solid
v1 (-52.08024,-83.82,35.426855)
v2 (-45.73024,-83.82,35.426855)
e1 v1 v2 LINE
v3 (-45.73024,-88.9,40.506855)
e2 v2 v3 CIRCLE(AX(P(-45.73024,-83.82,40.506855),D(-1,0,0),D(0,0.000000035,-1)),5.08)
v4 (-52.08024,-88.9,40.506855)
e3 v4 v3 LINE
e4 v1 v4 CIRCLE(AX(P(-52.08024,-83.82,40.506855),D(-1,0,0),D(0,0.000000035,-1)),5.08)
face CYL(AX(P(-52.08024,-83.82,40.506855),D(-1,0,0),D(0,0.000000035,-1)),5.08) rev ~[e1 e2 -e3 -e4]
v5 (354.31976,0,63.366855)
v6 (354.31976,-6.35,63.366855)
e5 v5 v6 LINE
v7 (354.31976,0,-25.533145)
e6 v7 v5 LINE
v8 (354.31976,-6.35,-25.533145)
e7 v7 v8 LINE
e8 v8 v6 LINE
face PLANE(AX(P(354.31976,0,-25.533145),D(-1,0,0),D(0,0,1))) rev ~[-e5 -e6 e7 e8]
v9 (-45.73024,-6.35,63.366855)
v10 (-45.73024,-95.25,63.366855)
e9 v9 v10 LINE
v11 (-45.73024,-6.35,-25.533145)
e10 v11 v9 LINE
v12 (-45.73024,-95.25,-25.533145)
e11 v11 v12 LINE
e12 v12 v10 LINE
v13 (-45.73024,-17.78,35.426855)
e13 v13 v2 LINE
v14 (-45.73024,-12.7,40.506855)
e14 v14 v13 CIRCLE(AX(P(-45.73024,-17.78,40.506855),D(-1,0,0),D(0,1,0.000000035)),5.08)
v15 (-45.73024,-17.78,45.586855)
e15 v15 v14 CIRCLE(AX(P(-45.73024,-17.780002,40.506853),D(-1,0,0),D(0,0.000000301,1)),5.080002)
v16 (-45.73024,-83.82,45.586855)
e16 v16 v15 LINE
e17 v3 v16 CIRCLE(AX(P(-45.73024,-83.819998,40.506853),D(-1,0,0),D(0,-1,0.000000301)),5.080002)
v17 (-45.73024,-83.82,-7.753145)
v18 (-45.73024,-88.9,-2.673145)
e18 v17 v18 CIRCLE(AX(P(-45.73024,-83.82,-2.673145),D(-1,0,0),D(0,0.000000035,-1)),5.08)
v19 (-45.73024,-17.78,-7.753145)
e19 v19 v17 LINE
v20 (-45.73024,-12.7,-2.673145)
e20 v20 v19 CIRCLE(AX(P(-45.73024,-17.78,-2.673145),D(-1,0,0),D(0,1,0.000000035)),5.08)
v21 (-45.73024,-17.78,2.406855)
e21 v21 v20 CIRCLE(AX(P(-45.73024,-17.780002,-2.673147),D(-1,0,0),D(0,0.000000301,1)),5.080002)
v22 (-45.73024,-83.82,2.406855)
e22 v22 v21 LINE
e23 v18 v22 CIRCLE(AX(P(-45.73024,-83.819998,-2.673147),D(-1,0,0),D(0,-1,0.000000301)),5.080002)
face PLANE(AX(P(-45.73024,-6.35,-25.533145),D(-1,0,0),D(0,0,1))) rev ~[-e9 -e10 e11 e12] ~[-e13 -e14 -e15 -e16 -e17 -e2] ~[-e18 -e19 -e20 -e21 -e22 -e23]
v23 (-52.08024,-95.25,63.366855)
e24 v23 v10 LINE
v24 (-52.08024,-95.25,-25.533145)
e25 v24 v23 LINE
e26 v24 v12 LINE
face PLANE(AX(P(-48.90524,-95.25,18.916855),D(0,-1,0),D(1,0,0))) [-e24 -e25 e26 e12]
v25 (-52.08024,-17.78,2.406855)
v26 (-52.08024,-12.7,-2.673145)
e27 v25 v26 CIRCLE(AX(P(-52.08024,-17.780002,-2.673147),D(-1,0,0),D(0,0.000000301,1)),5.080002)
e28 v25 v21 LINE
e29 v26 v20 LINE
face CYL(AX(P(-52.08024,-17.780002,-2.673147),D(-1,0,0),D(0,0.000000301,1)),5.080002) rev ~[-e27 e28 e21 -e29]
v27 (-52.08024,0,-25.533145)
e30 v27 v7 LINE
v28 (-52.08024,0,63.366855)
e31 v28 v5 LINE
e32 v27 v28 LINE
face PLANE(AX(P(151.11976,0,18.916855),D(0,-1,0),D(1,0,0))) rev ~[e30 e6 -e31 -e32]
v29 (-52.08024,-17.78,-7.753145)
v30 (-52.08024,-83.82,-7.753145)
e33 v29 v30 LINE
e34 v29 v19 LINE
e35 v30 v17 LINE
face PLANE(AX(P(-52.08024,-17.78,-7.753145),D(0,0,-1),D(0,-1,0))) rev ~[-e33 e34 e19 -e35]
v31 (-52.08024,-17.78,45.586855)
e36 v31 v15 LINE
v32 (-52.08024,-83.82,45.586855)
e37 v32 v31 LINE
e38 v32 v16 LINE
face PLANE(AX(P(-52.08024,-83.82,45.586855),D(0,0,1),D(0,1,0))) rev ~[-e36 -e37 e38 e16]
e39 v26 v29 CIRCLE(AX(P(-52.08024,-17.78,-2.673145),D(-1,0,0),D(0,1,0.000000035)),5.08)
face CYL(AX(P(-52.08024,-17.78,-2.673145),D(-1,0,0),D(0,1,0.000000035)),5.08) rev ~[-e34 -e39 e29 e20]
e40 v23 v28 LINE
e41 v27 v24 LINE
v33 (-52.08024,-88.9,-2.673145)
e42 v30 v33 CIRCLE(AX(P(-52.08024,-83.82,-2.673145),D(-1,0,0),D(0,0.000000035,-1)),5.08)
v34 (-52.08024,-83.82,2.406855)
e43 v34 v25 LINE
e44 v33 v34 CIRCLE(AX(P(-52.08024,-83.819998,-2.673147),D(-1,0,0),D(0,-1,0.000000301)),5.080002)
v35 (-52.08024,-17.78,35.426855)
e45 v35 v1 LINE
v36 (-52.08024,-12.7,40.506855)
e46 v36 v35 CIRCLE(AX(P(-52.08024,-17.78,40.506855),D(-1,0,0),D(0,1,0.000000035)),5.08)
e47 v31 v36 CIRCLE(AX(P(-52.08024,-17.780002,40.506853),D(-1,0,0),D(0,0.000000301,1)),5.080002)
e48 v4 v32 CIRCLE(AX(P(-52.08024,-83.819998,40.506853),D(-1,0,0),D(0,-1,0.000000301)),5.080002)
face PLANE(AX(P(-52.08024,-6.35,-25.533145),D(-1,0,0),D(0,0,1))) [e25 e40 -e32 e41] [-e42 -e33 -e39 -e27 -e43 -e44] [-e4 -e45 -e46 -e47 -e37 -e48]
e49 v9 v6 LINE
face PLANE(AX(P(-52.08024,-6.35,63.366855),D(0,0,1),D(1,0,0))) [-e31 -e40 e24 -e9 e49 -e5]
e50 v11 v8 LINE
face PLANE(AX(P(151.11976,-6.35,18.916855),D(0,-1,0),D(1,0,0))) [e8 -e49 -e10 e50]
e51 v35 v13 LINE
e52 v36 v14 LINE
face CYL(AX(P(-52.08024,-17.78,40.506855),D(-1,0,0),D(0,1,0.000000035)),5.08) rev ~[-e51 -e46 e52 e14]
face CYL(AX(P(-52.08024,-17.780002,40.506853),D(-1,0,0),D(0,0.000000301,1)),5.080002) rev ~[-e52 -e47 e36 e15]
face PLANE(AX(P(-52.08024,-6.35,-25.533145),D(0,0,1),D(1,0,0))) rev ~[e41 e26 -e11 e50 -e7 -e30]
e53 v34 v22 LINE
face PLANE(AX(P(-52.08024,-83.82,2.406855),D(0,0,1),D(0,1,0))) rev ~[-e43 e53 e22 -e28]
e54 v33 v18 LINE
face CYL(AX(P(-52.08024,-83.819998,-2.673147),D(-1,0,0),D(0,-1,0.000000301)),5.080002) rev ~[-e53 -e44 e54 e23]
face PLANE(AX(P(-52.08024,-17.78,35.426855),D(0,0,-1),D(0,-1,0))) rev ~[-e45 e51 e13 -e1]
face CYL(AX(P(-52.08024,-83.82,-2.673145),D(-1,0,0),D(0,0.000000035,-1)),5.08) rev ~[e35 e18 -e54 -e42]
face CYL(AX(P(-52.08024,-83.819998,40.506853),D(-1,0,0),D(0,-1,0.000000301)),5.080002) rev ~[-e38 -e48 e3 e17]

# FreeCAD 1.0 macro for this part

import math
import FreeCAD as App
import Part
import Sketcher
Q = App.Units.Quantity


def add_polygon(sketch, points):
    """Adds a closed chain of lines whose ends are joined by coincident constraints."""
    first, n = sketch.GeometryCount, len(points)
    for a, b in zip(points, points[1:] + points[:1]):
        sketch.addGeometry(Part.LineSegment(App.Vector(*a, 0), App.Vector(*b, 0)), False)
    for i in range(n):
        sketch.addConstraint(Sketcher.Constraint("Coincident", first + i, 2, first + (i + 1) % n, 1))

doc = App.newDocument("Part")
body = doc.addObject("PartDesign::Body", "Body")

# Sketch on XZ plane
sketch1 = body.newObject("Sketcher::SketchObject", "Sketch")
sketch1.AttachmentSupport = (doc.getObject("XZ_Plane"), [""])
sketch1.MapMode = "FlatFace"
add_polygon(sketch1, [(-52, 63), (-52, -26), (354, -26), (354, 63)])  # lines 0-3
sketch1.addConstraint([
    Sketcher.Constraint("Vertical", 0),
    Sketcher.Constraint("Horizontal", 1),
    Sketcher.Constraint("Vertical", 2),
    Sketcher.Constraint("Horizontal", 3),
    Sketcher.Constraint("DistanceX", 1, 1, 1, 2, Q("16 in")),
    Sketcher.Constraint("DistanceY", 0, 2, 0, 1, Q("3.5 in")),
    Sketcher.Constraint("DistanceX", 0, 2, -1, 1, Q("52.08024 mm")),
    Sketcher.Constraint("DistanceY", 0, 2, -1, 1, Q("25.533145 mm")),
])
pad1 = body.newObject("PartDesign::Pad", "Pad")
pad1.Profile = sketch1
pad1.Length = Q("0.25 in")

# Sketch on XZ plane
sketch2 = body.newObject("Sketcher::SketchObject", "Sketch001")
sketch2.AttachmentSupport = (doc.getObject("XZ_Plane"), [""])
sketch2.MapMode = "FlatFace"
sketch2.AttachmentOffset = App.Placement(App.Vector(0, 0, 0.25 * 25.4), App.Rotation())
add_polygon(sketch2, [(-52, 63), (-52, -26), (-46, -26), (-46, 63)])  # lines 0-3
sketch2.addConstraint([
    Sketcher.Constraint("Vertical", 0),
    Sketcher.Constraint("Horizontal", 1),
    Sketcher.Constraint("Vertical", 2),
    Sketcher.Constraint("Horizontal", 3),
    Sketcher.Constraint("DistanceY", 0, 2, 0, 1, Q("3.5 in")),
    Sketcher.Constraint("DistanceX", 1, 1, 1, 2, Q("0.25 in")),
    Sketcher.Constraint("DistanceX", 0, 2, -1, 1, Q("52.08024 mm")),
    Sketcher.Constraint("DistanceY", 0, 2, -1, 1, Q("25.533145 mm")),
])
pad2 = body.newObject("PartDesign::Pad", "Pad001")
pad2.Profile = sketch2
pad2.Length = Q("3.5 in")

# Sketch on YZ plane
sketch3 = body.newObject("Sketcher::SketchObject", "Sketch002")
sketch3.AttachmentSupport = (doc.getObject("YZ_Plane"), [""])
sketch3.MapMode = "FlatFace"
sketch3.AttachmentOffset = App.Placement(App.Vector(0, 0, -52.08024), App.Rotation())
sketch3.addGeometry([
    Part.ArcOfCircle(Part.Circle(App.Vector(-18, 41, 0), App.Vector(0, 0, 1), 5), math.radians(0), math.radians(90)),  # 0
    Part.ArcOfCircle(Part.Circle(App.Vector(-18, 41, 0), App.Vector(0, 0, 1), 5), math.radians(-90), math.radians(0)),  # 1
    Part.LineSegment(App.Vector(-18, 35, 0), App.Vector(-84, 35, 0)),  # 2
    Part.ArcOfCircle(Part.Circle(App.Vector(-84, 41, 0), App.Vector(0, 0, 1), 5), math.radians(180), math.radians(270)),  # 3
    Part.ArcOfCircle(Part.Circle(App.Vector(-84, 41, 0), App.Vector(0, 0, 1), 5), math.radians(90), math.radians(180)),  # 4
    Part.LineSegment(App.Vector(-84, 46, 0), App.Vector(-18, 46, 0)),  # 5
    Part.ArcOfCircle(Part.Circle(App.Vector(-18, -3, 0), App.Vector(0, 0, 1), 5), math.radians(-90), math.radians(0)),  # 6
    Part.LineSegment(App.Vector(-18, -8, 0), App.Vector(-84, -8, 0)),  # 7
    Part.ArcOfCircle(Part.Circle(App.Vector(-84, -3, 0), App.Vector(0, 0, 1), 5), math.radians(180), math.radians(270)),  # 8
    Part.ArcOfCircle(Part.Circle(App.Vector(-84, -3, 0), App.Vector(0, 0, 1), 5), math.radians(90), math.radians(180)),  # 9
    Part.LineSegment(App.Vector(-84, 2, 0), App.Vector(-18, 2, 0)),  # 10
    Part.ArcOfCircle(Part.Circle(App.Vector(-18, -3, 0), App.Vector(0, 0, 1), 5), math.radians(0), math.radians(90)),  # 11
], False)
sketch3.addConstraint([
    Sketcher.Constraint("Tangent", 0, 1, 1, 2),
    Sketcher.Constraint("Tangent", 1, 1, 2, 1),
    Sketcher.Constraint("Tangent", 2, 2, 3, 2),
    Sketcher.Constraint("Tangent", 3, 1, 4, 2),
    Sketcher.Constraint("Tangent", 4, 1, 5, 1),
    Sketcher.Constraint("Tangent", 5, 2, 0, 2),
    Sketcher.Constraint("Tangent", 6, 1, 7, 1),
    Sketcher.Constraint("Tangent", 7, 2, 8, 2),
    Sketcher.Constraint("Tangent", 8, 1, 9, 2),
    Sketcher.Constraint("Tangent", 9, 1, 10, 1),
    Sketcher.Constraint("Tangent", 10, 2, 11, 2),
    Sketcher.Constraint("Tangent", 11, 1, 6, 2),
    Sketcher.Constraint("Horizontal", 2),
    Sketcher.Constraint("Horizontal", 5),
    Sketcher.Constraint("Horizontal", 7),
    Sketcher.Constraint("Horizontal", 10),
    Sketcher.Constraint("Equal", 0, 1),
    Sketcher.Constraint("Equal", 1, 3),
    Sketcher.Constraint("Equal", 4, 6),
    Sketcher.Constraint("Equal", 6, 8),
    Sketcher.Constraint("Equal", 8, 9),
    Sketcher.Constraint("Horizontal", 4, 3, 0, 1),
    Sketcher.Constraint("Horizontal", 0, 1, 3, 1),
    Sketcher.Constraint("Horizontal", 11, 3, 8, 1),
    Sketcher.Constraint("Horizontal", 8, 1, 11, 1),
    Sketcher.Constraint("Vertical", 1, 3, 6, 3),
    Sketcher.Constraint("Vertical", 4, 3, 8, 3),
    Sketcher.Constraint("Radius", 0, Q("0.2000001 in")),
    Sketcher.Constraint("DistanceX", 2, 2, 2, 1, Q("2.6 in")),
    Sketcher.Constraint("DistanceX", 0, 3, -1, 1, Q("0.7000001 in")),
    Sketcher.Constraint("DistanceY", 6, 3, 0, 3, Q("1.6999999 in")),
    Sketcher.Constraint("DistanceY", -1, 1, 0, 3, Q("40.506853 mm")),
])
pocket1 = body.newObject("PartDesign::Pocket", "Pocket")
pocket1.Profile = sketch3
pocket1.Length = Q("1 in")
pocket1.Reversed = True

doc.recompute()
